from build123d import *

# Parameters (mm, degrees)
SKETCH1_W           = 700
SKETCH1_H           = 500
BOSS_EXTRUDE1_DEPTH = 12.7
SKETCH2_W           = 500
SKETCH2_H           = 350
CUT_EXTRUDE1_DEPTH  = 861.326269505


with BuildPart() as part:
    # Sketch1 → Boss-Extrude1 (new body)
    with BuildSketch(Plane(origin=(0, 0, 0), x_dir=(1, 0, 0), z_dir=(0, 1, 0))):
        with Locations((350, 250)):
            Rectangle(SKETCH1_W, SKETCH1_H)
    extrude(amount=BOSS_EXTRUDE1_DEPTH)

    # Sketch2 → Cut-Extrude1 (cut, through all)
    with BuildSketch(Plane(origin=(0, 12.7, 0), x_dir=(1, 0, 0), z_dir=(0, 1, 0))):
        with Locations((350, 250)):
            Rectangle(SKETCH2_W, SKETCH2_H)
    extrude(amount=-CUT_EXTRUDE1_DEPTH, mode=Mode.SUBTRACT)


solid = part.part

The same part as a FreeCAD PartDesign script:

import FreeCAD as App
import Part
import Sketcher
from FreeCAD import Vector
Q = App.Units.Quantity

doc = App.newDocument("Part")
body = doc.addObject("PartDesign::Body", "Body")

# Sketch on XZ plane
sketch1 = doc.addObject("Sketcher::SketchObject", "Sketch")
body.addObject(sketch1)
sketch1.AttachmentSupport = (doc.XZ_Plane, [""])
sketch1.MapMode = "FlatFace"
sketch1.addGeometry([
    Part.LineSegment(Vector(0, -500, 0), Vector(0, 0, 0)),
    Part.LineSegment(Vector(0, 0, 0), Vector(700, 0, 0)),
    Part.LineSegment(Vector(700, 0, 0), Vector(700, -500, 0)),
    Part.LineSegment(Vector(700, -500, 0), Vector(0, -500, 0)),
], False)
sketch1.addConstraint([
    Sketcher.Constraint("Coincident", 0, 2, 1, 1),
    Sketcher.Constraint("Coincident", 1, 2, 2, 1),
    Sketcher.Constraint("Coincident", 2, 2, 3, 1),
    Sketcher.Constraint("Coincident", 3, 2, 0, 1),
    Sketcher.Constraint("Vertical", 0),
    Sketcher.Constraint("Horizontal", 1),
    Sketcher.Constraint("Vertical", 2),
    Sketcher.Constraint("Horizontal", 3),
    Sketcher.Constraint("Coincident", 0, 2, -1, 1),
    Sketcher.Constraint("DistanceX", 1, 1, 1, 2, Q("700 mm")),
    Sketcher.Constraint("DistanceY", 0, 1, 0, 2, Q("500 mm")),
])
pad1 = doc.addObject("PartDesign::Pad", "Pad")
body.addObject(pad1)
pad1.Profile = sketch1
pad1.Length = 12.7
pad1.Reversed = True

# Sketch on XZ plane
sketch2 = doc.addObject("Sketcher::SketchObject", "Sketch001")
body.addObject(sketch2)
sketch2.AttachmentSupport = (doc.XZ_Plane, [""])
sketch2.MapMode = "FlatFace"
sketch2.AttachmentOffset = App.Placement(Vector(0, 0, -12.7), App.Rotation())
sketch2.addGeometry([
    Part.LineSegment(Vector(100, -425, 0), Vector(100, -75, 0)),
    Part.LineSegment(Vector(100, -75, 0), Vector(600, -75, 0)),
    Part.LineSegment(Vector(600, -75, 0), Vector(600, -425, 0)),
    Part.LineSegment(Vector(600, -425, 0), Vector(100, -425, 0)),
], False)
sketch2.addConstraint([
    Sketcher.Constraint("Coincident", 0, 2, 1, 1),
    Sketcher.Constraint("Coincident", 1, 2, 2, 1),
    Sketcher.Constraint("Coincident", 2, 2, 3, 1),
    Sketcher.Constraint("Coincident", 3, 2, 0, 1),
    Sketcher.Constraint("Vertical", 0),
    Sketcher.Constraint("Horizontal", 1),
    Sketcher.Constraint("Vertical", 2),
    Sketcher.Constraint("Horizontal", 3),
    Sketcher.Constraint("DistanceX", 1, 1, 1, 2, Q("500 mm")),
    Sketcher.Constraint("DistanceY", 0, 1, 0, 2, Q("350 mm")),
    Sketcher.Constraint("DistanceX", -1, 1, 0, 2, Q("100 mm")),
    Sketcher.Constraint("DistanceY", 0, 2, -1, 1, Q("75 mm")),
])
pocket1 = doc.addObject("PartDesign::Pocket", "Pocket")
body.addObject(pocket1)
pocket1.Profile = sketch2
pocket1.Type = "ThroughAll"
pocket1.Reversed = True

doc.recompute()
